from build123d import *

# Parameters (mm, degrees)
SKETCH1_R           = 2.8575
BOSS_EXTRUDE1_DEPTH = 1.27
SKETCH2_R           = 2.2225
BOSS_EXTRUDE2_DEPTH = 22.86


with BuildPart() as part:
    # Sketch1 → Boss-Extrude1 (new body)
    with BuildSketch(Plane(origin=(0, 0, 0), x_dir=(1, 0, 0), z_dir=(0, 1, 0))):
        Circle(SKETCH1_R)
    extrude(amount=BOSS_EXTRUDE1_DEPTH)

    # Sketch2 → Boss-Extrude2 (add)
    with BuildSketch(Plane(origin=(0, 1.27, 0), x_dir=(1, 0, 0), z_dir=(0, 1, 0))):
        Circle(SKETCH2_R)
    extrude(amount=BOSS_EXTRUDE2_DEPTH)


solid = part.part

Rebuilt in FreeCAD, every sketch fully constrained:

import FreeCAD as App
import Part
import Sketcher
from FreeCAD import Vector
Q = App.Units.Quantity

doc = App.newDocument("Part")
params = doc.addObject("Spreadsheet::Sheet", "Params")
for row, (alias, value) in enumerate([
    ("sketch1_diameter", "0.225 in"),
    ("pad1_length", "0.05 in"),
    ("sketch2_diameter", "0.175 in"),
    ("pad2_length", "0.9 in"),
], start=1):
    params.set(f"A{row}", alias)
    params.set(f"B{row}", "=" + value)
    params.setAlias(f"B{row}", alias)

body = doc.addObject("PartDesign::Body", "Body")

sketch1 = body.newObject("Sketcher::SketchObject", "Sketch")
sketch1.AttachmentSupport = (doc.getObject("XZ_Plane"), [""])
sketch1.MapMode = "FlatFace"
sketch1.addGeometry(Part.Circle(Vector(0, 0, 0), Vector(0, 0, 1), 2.9), False)
sketch1.addConstraint([
    Sketcher.Constraint("Coincident", 0, 3, -1, 1),
    Sketcher.Constraint("Diameter", 0, Q("0.225 in")),
])
sketch1.setExpression("Constraints[1]", "Params.sketch1_diameter")
pad1 = body.newObject("PartDesign::Pad", "Pad")
pad1.Profile = sketch1
pad1.setExpression("Length", "Params.pad1_length")
pad1.Reversed = True

sketch2 = body.newObject("Sketcher::SketchObject", "Sketch001")
sketch2.AttachmentSupport = (doc.getObject("XZ_Plane"), [""])
sketch2.MapMode = "FlatFace"
sketch2.AttachmentOffset = App.Placement(Vector(0, 0, -0.05 * 25.4), App.Rotation())
sketch2.addGeometry(Part.Circle(Vector(0, 0, 0), Vector(0, 0, 1), 2.2), False)
sketch2.addConstraint([
    Sketcher.Constraint("Coincident", 0, 3, -1, 1),
    Sketcher.Constraint("Diameter", 0, Q("0.175 in")),
])
sketch2.setExpression("Constraints[1]", "Params.sketch2_diameter")
pad2 = body.newObject("PartDesign::Pad", "Pad001")
pad2.Profile = sketch2
pad2.setExpression("Length", "Params.pad2_length")
pad2.Reversed = True

doc.recompute()
